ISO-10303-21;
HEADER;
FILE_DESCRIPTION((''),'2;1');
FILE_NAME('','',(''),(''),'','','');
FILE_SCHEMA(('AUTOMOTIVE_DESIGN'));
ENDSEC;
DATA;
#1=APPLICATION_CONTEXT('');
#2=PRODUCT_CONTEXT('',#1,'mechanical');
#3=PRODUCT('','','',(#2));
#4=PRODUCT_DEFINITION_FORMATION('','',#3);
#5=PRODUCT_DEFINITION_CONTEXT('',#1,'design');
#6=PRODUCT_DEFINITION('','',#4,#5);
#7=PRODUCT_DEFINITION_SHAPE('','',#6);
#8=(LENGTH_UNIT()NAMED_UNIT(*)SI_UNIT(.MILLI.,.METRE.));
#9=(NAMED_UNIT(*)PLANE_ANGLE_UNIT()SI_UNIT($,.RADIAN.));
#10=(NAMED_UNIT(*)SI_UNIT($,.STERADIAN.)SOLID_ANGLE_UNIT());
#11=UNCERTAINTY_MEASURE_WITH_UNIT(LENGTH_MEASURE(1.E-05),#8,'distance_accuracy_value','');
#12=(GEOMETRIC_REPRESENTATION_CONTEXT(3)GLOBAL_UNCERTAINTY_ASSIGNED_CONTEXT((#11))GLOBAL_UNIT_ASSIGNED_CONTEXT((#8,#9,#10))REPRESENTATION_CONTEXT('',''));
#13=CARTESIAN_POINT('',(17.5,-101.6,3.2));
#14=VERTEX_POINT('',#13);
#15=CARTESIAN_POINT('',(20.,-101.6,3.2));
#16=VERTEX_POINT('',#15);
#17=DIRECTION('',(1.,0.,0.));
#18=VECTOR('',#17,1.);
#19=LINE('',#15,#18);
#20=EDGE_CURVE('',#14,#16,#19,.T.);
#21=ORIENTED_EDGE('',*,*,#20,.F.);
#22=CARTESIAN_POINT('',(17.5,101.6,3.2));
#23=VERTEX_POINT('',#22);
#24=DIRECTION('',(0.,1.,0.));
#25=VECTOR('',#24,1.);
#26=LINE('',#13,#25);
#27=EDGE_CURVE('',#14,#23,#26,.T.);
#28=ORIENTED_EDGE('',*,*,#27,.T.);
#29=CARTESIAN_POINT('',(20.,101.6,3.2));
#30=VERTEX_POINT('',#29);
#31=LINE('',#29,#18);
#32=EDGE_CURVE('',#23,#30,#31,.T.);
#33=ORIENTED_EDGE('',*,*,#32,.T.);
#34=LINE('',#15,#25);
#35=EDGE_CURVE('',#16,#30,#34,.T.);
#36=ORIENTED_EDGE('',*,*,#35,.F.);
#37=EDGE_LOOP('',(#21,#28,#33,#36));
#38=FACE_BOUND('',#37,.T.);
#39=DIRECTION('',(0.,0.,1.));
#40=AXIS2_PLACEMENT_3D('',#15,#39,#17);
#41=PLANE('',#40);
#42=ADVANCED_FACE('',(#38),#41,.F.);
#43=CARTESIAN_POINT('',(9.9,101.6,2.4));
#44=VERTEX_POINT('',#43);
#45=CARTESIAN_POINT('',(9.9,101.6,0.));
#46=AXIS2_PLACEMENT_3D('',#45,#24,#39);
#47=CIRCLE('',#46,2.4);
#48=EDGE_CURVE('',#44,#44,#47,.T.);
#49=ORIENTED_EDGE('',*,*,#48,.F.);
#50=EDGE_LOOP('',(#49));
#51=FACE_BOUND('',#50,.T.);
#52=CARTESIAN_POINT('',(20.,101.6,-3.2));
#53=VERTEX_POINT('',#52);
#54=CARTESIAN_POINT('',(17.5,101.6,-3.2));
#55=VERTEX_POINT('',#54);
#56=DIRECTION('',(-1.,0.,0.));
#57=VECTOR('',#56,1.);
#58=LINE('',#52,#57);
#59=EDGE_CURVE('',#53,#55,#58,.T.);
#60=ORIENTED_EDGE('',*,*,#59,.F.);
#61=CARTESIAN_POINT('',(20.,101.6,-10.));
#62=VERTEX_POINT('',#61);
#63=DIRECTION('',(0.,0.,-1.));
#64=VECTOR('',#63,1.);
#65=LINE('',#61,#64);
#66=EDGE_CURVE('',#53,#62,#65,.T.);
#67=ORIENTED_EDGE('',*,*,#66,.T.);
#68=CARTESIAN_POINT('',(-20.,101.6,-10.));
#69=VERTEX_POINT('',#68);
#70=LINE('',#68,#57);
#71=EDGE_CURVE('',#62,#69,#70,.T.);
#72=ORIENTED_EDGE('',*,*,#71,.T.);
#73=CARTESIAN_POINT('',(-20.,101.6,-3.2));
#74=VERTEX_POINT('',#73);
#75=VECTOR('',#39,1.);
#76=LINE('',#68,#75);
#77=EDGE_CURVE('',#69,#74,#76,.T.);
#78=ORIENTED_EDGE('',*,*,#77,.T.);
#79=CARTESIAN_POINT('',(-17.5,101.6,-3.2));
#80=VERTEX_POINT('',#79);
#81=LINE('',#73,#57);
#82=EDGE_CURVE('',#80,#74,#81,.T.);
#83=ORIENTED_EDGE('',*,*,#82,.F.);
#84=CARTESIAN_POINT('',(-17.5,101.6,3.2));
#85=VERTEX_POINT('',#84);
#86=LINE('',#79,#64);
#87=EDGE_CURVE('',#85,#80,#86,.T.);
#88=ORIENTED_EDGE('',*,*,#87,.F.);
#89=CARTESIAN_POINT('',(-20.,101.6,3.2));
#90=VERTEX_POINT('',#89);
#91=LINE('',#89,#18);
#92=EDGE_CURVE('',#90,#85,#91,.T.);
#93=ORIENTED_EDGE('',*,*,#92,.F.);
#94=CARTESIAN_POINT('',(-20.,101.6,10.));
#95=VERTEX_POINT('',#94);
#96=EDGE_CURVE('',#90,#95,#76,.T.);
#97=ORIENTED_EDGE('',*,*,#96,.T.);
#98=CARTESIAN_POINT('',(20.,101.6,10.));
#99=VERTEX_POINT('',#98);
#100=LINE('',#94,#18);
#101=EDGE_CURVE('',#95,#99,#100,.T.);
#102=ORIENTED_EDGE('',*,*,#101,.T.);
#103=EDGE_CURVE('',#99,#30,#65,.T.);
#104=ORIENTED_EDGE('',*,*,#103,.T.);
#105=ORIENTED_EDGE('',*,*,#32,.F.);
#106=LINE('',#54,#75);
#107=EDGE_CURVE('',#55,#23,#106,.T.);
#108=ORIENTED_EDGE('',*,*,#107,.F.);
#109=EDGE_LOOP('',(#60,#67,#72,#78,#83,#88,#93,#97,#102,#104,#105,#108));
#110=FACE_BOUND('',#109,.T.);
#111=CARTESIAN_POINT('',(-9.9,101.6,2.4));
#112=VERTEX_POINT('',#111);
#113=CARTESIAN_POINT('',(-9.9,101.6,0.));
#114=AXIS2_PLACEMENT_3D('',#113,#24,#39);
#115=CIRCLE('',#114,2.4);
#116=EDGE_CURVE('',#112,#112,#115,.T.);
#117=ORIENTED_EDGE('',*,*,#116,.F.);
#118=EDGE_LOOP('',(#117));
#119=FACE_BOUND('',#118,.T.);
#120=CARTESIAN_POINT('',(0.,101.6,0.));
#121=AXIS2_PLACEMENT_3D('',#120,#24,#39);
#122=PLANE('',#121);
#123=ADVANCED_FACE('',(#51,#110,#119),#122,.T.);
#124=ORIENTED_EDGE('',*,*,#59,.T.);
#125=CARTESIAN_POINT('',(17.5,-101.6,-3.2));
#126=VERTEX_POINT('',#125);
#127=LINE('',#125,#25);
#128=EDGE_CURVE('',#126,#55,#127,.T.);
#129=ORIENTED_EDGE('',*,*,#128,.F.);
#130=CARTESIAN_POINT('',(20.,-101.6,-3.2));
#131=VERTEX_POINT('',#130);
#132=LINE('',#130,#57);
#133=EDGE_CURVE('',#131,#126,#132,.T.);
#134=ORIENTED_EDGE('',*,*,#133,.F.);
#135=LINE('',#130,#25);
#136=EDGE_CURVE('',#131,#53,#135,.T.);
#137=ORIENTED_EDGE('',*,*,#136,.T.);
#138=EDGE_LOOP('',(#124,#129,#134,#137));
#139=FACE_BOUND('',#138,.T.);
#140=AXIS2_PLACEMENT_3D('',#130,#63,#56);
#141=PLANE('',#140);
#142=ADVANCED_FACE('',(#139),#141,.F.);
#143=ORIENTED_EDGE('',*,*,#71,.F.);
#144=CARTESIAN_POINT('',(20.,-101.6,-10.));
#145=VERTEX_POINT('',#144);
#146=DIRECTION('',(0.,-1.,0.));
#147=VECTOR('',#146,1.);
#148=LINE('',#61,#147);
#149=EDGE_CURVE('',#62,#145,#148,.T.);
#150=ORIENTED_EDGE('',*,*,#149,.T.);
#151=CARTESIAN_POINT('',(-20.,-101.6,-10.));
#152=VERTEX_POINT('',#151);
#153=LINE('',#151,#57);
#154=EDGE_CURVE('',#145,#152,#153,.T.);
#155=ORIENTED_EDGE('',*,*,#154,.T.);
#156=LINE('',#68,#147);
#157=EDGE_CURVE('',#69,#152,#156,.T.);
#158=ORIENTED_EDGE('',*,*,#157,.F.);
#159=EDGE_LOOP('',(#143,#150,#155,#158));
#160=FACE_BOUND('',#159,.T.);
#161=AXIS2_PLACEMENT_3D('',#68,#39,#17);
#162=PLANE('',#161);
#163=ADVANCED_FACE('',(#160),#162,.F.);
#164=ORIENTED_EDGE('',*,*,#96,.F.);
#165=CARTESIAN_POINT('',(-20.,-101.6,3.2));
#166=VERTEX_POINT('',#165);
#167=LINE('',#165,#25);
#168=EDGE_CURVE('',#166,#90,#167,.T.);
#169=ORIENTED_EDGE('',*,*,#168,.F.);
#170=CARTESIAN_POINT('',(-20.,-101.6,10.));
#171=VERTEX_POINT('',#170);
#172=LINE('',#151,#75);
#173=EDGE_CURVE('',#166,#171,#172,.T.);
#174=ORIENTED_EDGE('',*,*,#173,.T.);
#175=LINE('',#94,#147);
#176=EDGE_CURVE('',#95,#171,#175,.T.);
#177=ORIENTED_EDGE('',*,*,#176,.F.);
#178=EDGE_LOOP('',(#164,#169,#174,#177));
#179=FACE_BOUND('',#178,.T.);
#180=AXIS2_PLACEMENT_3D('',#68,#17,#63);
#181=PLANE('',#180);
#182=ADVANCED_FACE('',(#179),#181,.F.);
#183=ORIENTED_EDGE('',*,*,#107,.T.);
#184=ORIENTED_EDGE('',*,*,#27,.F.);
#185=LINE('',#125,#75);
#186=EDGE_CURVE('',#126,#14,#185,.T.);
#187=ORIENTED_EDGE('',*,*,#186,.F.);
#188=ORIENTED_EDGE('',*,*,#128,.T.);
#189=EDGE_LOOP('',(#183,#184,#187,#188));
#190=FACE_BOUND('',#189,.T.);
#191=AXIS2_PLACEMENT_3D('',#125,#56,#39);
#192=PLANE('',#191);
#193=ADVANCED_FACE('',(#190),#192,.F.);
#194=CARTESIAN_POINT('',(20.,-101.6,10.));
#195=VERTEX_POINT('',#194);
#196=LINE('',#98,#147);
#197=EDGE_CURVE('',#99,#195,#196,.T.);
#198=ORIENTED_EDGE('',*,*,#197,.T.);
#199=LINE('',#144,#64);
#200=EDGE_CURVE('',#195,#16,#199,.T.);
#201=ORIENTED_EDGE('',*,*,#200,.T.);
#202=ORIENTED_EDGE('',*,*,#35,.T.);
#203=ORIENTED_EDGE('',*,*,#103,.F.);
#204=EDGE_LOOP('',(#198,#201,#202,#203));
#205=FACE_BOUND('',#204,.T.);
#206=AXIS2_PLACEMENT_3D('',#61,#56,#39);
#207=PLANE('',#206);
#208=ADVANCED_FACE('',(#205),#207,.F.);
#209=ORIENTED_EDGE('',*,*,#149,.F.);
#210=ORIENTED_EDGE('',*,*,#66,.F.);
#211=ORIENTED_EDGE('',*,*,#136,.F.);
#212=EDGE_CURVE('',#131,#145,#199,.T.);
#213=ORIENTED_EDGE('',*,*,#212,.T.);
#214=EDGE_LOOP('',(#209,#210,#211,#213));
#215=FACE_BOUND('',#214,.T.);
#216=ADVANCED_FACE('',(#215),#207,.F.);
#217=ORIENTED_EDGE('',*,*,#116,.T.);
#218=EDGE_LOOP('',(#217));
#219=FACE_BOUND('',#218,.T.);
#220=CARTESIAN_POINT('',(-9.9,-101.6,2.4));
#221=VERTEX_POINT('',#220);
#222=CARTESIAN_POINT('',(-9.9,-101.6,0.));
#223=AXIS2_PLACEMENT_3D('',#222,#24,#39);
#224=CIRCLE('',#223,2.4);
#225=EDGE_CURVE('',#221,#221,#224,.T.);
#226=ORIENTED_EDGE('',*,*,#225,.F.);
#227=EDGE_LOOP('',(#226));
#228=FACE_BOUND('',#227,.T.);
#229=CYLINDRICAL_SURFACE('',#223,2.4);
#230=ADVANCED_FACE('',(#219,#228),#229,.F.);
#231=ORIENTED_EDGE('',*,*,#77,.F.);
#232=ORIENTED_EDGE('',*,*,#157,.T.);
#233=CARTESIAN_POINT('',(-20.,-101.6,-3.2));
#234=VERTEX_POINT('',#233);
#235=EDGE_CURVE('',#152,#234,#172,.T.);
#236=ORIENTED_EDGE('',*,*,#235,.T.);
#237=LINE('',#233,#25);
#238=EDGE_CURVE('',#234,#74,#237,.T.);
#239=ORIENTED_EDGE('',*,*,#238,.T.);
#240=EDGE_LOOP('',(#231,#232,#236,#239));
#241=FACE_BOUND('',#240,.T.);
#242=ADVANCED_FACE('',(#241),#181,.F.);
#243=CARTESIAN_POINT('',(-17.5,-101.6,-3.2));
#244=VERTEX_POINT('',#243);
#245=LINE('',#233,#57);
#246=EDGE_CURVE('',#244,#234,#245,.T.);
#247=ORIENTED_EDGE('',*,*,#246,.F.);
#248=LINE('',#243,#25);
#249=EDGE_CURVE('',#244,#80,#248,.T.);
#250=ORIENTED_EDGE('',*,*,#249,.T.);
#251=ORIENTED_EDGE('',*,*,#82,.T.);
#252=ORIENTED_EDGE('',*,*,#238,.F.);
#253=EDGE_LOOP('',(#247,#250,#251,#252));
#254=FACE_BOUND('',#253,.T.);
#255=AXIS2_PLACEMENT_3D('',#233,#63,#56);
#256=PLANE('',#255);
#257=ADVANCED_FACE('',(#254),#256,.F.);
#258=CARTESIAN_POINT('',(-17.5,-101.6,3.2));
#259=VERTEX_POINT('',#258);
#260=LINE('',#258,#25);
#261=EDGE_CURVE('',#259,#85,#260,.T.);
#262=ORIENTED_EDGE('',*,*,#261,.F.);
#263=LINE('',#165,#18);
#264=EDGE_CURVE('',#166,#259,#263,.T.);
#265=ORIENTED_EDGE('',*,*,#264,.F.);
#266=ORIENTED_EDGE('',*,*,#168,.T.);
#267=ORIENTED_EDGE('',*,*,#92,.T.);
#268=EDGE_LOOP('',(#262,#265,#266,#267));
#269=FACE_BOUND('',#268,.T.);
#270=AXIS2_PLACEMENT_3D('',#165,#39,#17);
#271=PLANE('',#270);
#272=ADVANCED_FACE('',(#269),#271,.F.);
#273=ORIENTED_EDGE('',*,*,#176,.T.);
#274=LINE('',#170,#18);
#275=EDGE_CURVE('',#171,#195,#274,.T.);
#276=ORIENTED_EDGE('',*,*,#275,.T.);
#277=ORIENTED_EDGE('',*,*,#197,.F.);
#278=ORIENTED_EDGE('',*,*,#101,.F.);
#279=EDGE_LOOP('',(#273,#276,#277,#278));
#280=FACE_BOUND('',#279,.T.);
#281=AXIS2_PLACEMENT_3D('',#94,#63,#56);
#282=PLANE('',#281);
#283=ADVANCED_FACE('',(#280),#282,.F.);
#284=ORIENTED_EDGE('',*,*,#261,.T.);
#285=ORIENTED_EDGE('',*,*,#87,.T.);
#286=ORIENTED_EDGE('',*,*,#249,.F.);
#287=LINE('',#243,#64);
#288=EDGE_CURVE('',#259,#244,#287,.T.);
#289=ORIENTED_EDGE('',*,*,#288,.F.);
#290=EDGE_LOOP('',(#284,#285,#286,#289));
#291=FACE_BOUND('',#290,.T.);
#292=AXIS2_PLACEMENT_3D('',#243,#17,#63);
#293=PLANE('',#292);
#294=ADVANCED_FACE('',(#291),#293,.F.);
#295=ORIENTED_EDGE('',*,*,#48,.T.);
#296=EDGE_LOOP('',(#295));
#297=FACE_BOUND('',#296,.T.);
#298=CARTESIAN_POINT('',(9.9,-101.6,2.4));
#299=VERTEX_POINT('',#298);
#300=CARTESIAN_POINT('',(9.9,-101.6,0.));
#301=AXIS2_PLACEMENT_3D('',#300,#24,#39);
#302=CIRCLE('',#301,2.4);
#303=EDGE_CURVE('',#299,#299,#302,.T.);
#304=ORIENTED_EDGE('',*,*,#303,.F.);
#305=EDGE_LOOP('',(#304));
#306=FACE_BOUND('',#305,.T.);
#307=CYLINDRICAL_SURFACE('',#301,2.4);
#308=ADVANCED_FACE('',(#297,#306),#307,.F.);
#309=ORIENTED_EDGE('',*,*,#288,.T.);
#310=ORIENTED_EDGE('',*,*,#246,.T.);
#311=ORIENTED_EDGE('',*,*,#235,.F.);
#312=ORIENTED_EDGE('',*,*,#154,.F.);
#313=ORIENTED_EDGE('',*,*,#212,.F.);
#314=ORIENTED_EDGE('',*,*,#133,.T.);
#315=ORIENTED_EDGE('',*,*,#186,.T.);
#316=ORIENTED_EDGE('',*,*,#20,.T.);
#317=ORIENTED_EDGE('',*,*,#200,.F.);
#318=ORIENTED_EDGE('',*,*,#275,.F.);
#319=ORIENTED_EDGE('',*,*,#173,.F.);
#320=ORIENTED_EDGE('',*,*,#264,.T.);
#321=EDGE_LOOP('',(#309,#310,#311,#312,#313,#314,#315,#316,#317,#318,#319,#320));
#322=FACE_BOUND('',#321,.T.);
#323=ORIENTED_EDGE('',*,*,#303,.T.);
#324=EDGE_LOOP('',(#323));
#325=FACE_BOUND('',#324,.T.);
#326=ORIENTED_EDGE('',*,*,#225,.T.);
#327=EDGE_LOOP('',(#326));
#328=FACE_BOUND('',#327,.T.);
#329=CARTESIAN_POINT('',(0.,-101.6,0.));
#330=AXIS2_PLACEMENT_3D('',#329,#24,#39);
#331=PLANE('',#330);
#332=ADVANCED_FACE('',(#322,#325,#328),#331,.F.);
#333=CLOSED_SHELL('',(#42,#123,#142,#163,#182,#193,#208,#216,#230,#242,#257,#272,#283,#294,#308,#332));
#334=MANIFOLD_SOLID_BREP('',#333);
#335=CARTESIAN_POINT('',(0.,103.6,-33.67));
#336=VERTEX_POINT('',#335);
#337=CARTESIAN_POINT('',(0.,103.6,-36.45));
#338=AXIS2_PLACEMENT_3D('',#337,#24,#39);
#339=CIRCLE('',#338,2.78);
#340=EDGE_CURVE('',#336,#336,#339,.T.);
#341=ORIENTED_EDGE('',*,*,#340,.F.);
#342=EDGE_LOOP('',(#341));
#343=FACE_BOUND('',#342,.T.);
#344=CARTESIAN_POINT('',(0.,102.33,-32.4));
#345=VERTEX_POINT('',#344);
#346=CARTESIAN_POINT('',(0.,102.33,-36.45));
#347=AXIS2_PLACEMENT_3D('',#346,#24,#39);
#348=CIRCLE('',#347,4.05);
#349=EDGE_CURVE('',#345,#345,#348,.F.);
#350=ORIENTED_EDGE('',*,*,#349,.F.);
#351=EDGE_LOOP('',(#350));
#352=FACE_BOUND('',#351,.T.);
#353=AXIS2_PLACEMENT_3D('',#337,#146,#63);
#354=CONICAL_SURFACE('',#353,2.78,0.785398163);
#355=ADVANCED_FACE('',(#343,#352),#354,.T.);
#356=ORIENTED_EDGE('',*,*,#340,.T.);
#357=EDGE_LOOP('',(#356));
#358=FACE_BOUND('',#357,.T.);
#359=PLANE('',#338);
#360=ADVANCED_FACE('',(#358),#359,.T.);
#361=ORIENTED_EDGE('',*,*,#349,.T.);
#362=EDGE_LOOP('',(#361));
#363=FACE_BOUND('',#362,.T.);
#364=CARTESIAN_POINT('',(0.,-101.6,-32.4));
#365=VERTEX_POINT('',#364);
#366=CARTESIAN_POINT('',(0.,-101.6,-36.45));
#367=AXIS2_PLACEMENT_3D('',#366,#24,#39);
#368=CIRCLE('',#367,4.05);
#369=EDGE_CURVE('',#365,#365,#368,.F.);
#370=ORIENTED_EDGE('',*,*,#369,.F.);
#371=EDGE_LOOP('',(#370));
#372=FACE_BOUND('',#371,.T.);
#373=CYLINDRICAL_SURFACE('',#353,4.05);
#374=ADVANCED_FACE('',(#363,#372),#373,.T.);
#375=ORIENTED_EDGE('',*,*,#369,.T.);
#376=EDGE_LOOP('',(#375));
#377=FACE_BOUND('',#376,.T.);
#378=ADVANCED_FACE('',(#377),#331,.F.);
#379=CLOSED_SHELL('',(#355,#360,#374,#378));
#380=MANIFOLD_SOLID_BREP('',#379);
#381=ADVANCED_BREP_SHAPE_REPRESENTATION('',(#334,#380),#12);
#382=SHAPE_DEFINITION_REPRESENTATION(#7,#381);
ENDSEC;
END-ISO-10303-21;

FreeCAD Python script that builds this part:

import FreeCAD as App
import Part
import Sketcher

V = App.Vector


def edges_at(feature, points):
    """Names of the edges that pass closest to the given points."""
    edges = feature.Shape.Edges
    near = lambda p: min(range(len(edges)), key=lambda i: edges[i].distToShape(Part.Vertex(*p))[0])
    return sorted({f"Edge{near(p) + 1}" for p in points})


def add_polygon(sketch, points):
    """Adds a closed chain of lines whose ends are joined by coincident constraints."""
    first, n = sketch.GeometryCount, len(points)
    for a, b in zip(points, points[1:] + points[:1]):
        sketch.addGeometry(Part.LineSegment(App.Vector(*a, 0), App.Vector(*b, 0)), False)
    for i in range(n):
        sketch.addConstraint(Sketcher.Constraint("Coincident", first + i, 2, first + (i + 1) % n, 1))

doc = App.newDocument("Part")
params = doc.addObject("Spreadsheet::Sheet", "Params")
for row, (alias, value) in enumerate([
    ("sketch1_width", "40 mm"),
    ("sketch1_height", "20 mm"),
    ("pad1_length", "203.2 mm"),
    ("sketch2_width", "2.5 mm"),
    ("sketch2_height", "6.4 mm"),
    ("sketch3_diameter", "4.8 mm"),
    ("sketch4_diameter", "8.1 mm"),
    ("pad2_length", "2 mm"),
    ("pad2_length2", "203.2 mm"),
    ("chamfer_size", "1.27 mm"),
], start=1):
    params.set(f"A{row}", alias)
    params.set(f"B{row}", "=" + value)
    params.setAlias(f"B{row}", alias)

body = doc.addObject("PartDesign::Body", "Body")

# Sketch on XZ plane
sketch1 = body.newObject("Sketcher::SketchObject", "Sketch")
sketch1.AttachmentSupport = (doc.getObject("XZ_Plane"), [""])
sketch1.MapMode = "FlatFace"
add_polygon(sketch1, [(-20, -10), (-20, 10), (20, 10), (20, -10)])  # lines 0-3
sketch1.addConstraint(Sketcher.Constraint("Vertical", 0))
sketch1.addConstraint(Sketcher.Constraint("Horizontal", 1))
sketch1.addConstraint(Sketcher.Constraint("Vertical", 2))
sketch1.addConstraint(Sketcher.Constraint("Horizontal", 3))
sketch1.addConstraint(Sketcher.Constraint("Symmetric", 0, 2, 2, 2, -1, 1))
sketch1.addConstraint(Sketcher.Constraint("DistanceX", 1, 1, 1, 2, 40.0))
sketch1.addConstraint(Sketcher.Constraint("DistanceY", 0, 1, 0, 2, 20.0))
sketch1.setExpression("Constraints[9]", "Params.sketch1_width")
sketch1.setExpression("Constraints[10]", "Params.sketch1_height")
pad1 = body.newObject("PartDesign::Pad", "Pad")
pad1.Profile = sketch1
pad1.setExpression("Length", "Params.pad1_length")
pad1.Midplane = True

# Sketch on XZ plane
sketch2 = body.newObject("Sketcher::SketchObject", "Sketch001")
sketch2.AttachmentSupport = (doc.getObject("XZ_Plane"), [""])
sketch2.MapMode = "FlatFace"
sketch2.AttachmentOffset = App.Placement(V(0, 0, -101.6), App.Rotation())
add_polygon(sketch2, [(-20, -3.2), (-20, 3.2), (-17.5, 3.2), (-17.5, -3.2)])  # lines 0-3
add_polygon(sketch2, [(17.5, -3.2), (17.5, 3.2), (20, 3.2), (20, -3.2)])  # lines 4-7
sketch2.addConstraint(Sketcher.Constraint("Vertical", 0))
sketch2.addConstraint(Sketcher.Constraint("Horizontal", 1))
sketch2.addConstraint(Sketcher.Constraint("Vertical", 2))
sketch2.addConstraint(Sketcher.Constraint("Horizontal", 3))
sketch2.addConstraint(Sketcher.Constraint("Vertical", 4))
sketch2.addConstraint(Sketcher.Constraint("Horizontal", 5))
sketch2.addConstraint(Sketcher.Constraint("Vertical", 6))
sketch2.addConstraint(Sketcher.Constraint("Horizontal", 7))
sketch2.addConstraint(Sketcher.Constraint("Symmetric", 2, 2, 4, 2, -1, 1))
sketch2.addConstraint(Sketcher.Constraint("Symmetric", 0, 2, 6, 2, -1, 1))
sketch2.addConstraint(Sketcher.Constraint("Horizontal", 1, 2, 4, 2))
sketch2.addConstraint(Sketcher.Constraint("DistanceX", 1, 1, 1, 2, 2.5))
sketch2.addConstraint(Sketcher.Constraint("DistanceY", 0, 1, 0, 2, 6.4))
sketch2.addConstraint(Sketcher.Constraint("DistanceX", 0, 2, -1, 1, 20.0))
sketch2.setExpression("Constraints[19]", "Params.sketch2_width")
sketch2.setExpression("Constraints[20]", "Params.sketch2_height")
pocket1 = body.newObject("PartDesign::Pocket", "Pocket")
pocket1.Profile = sketch2
pocket1.Type = "ThroughAll"
pocket1.Reversed = True

# Sketch on XZ plane
sketch3 = body.newObject("Sketcher::SketchObject", "Sketch002")
sketch3.AttachmentSupport = (doc.getObject("XZ_Plane"), [""])
sketch3.MapMode = "FlatFace"
sketch3.AttachmentOffset = App.Placement(V(0, 0, -101.6), App.Rotation())
sketch3.addGeometry(Part.Circle(V(-9.9, 0, 0), V(0, 0, 1), 2.4), False)
sketch3.addGeometry(Part.Circle(V(9.9, 0, 0), V(0, 0, 1), 2.4), False)
sketch3.addConstraint(Sketcher.Constraint("Equal", 0, 1))
sketch3.addConstraint(Sketcher.Constraint("Symmetric", 0, 3, 1, 3, -1, 1))
sketch3.addConstraint(Sketcher.Constraint("PointOnObject", 0, 3, -1))
sketch3.addConstraint(Sketcher.Constraint("Diameter", 0, 4.8))
sketch3.addConstraint(Sketcher.Constraint("DistanceX", 0, 3, -1, 1, 9.9))
sketch3.setExpression("Constraints[3]", "Params.sketch3_diameter")
pocket2 = body.newObject("PartDesign::Pocket", "Pocket001")
pocket2.Profile = sketch3
pocket2.Type = "ThroughAll"
pocket2.Reversed = True
body2 = doc.addObject("PartDesign::Body", "Body001")

# Sketch on XZ plane
sketch4 = body2.newObject("Sketcher::SketchObject", "Sketch003")
sketch4.AttachmentSupport = (doc.getObject("XZ_Plane001"), [""])
sketch4.MapMode = "FlatFace"
sketch4.AttachmentOffset = App.Placement(V(0, 0, -101.6), App.Rotation())
sketch4.addGeometry(Part.Circle(V(0, -36.5, 0), V(0, 0, 1), 4), False)
sketch4.addConstraint(Sketcher.Constraint("PointOnObject", 0, 3, -2))
sketch4.addConstraint(Sketcher.Constraint("Diameter", 0, 8.1))
sketch4.addConstraint(Sketcher.Constraint("DistanceY", 0, 3, -1, 1, 36.45))
sketch4.setExpression("Constraints[1]", "Params.sketch4_diameter")
pad2 = body2.newObject("PartDesign::Pad", "Pad001")
pad2.Profile = sketch4
pad2.Type = "TwoLengths"
pad2.setExpression("Length", "Params.pad2_length")
pad2.setExpression("Length2", "Params.pad2_length2")
pad2.Reversed = True
doc.recompute()

chamfer = body2.newObject("PartDesign::Chamfer", "Chamfer")
chamfer.Base = (pad2, edges_at(pad2, [(-4.05, 103.6, -36.45)]))
chamfer.setExpression("Size", "Params.chamfer_size")

doc.recompute()
